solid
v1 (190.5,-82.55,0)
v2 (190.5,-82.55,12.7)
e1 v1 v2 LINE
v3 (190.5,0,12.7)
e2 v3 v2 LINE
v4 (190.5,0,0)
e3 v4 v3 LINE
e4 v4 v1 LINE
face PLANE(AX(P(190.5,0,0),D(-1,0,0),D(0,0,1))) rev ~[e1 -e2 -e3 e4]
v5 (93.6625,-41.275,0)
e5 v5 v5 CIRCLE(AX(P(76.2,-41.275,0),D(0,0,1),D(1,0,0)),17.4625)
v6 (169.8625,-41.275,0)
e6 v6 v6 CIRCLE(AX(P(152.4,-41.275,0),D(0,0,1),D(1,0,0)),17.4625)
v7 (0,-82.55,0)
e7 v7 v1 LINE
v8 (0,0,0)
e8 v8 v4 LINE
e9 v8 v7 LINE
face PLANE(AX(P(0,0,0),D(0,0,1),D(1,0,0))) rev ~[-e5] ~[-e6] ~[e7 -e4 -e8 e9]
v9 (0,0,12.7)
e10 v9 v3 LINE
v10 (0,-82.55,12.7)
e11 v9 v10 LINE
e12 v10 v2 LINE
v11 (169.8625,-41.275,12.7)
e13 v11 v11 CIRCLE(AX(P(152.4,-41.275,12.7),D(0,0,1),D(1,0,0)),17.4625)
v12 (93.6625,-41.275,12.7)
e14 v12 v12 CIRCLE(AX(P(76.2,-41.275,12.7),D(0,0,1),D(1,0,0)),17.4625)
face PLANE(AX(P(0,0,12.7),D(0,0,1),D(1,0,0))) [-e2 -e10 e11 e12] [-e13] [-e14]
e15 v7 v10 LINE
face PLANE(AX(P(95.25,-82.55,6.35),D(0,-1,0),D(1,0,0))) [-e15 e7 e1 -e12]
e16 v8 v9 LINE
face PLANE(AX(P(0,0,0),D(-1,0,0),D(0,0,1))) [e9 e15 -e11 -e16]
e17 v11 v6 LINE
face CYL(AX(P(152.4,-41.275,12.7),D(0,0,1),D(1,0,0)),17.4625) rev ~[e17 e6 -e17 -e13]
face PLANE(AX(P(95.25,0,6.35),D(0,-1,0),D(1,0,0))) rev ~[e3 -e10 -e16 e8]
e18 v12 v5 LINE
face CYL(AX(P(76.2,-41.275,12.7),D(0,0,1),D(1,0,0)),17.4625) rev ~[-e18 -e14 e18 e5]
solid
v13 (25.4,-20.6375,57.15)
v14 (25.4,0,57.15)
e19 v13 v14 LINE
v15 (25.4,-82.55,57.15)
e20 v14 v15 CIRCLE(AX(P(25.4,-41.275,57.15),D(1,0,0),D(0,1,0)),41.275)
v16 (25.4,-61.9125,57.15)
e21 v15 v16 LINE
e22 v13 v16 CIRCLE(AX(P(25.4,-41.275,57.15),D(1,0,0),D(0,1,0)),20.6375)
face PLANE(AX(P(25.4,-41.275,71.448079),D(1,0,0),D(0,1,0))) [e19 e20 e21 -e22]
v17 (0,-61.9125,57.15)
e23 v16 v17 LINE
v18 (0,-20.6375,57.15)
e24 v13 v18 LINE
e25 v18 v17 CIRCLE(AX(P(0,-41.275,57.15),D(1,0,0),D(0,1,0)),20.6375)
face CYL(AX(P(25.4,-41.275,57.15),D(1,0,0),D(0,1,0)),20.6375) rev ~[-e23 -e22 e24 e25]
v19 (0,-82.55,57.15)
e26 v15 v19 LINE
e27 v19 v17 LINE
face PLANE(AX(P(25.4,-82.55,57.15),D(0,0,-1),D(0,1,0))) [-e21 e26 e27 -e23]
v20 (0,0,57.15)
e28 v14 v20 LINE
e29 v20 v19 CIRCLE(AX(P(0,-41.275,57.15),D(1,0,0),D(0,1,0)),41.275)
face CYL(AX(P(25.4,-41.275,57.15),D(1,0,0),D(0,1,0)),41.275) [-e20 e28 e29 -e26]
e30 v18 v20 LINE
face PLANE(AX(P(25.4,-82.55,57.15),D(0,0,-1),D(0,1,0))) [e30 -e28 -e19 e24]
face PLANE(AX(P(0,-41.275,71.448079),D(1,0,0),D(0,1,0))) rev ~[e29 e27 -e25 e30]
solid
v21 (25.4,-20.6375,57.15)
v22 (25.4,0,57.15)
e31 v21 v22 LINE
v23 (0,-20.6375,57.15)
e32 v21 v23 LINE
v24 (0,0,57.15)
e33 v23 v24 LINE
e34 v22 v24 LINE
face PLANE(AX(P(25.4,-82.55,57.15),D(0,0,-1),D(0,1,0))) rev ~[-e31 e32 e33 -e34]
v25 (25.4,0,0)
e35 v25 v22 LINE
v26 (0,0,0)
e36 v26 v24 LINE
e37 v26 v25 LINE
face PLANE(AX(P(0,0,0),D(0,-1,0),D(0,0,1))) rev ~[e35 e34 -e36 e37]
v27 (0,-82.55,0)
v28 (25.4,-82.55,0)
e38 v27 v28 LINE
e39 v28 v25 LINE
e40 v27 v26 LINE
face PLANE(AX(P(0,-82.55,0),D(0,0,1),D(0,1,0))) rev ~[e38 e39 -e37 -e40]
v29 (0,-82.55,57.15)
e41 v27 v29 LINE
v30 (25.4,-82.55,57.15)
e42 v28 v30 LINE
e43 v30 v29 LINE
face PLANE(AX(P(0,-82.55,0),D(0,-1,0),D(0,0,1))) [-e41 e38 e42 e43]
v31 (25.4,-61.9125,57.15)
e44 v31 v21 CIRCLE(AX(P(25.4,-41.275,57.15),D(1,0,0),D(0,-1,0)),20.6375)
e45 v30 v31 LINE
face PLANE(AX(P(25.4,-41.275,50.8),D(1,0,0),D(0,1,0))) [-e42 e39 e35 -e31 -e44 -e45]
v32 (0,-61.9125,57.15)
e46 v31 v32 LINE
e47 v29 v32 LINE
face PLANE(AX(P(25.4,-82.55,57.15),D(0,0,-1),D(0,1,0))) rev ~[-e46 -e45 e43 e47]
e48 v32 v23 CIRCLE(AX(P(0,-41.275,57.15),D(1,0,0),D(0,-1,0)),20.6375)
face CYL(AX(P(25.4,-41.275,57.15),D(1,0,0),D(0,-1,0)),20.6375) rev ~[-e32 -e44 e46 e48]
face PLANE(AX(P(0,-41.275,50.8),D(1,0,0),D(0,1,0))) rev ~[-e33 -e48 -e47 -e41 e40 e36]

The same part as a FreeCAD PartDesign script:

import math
import FreeCAD as App
import Part
import Sketcher
Q = App.Units.Quantity

doc = App.newDocument("Part")
body = doc.addObject("PartDesign::Body", "Body")

# Sketch on XZ plane
sketch1 = body.newObject("Sketcher::SketchObject", "Sketch")
sketch1.AttachmentSupport = (doc.getObject("XZ_Plane"), [""])
sketch1.MapMode = "FlatFace"
sketch1.addGeometry(Part.LineSegment(App.Vector(0, 13, 0), App.Vector(0, 0, 0)), False)
sketch1.addGeometry(Part.LineSegment(App.Vector(0, 0, 0), App.Vector(190, 0, 0)), False)
sketch1.addGeometry(Part.LineSegment(App.Vector(190, 0, 0), App.Vector(190, 13, 0)), False)
sketch1.addGeometry(Part.LineSegment(App.Vector(190, 13, 0), App.Vector(0, 13, 0)), False)
sketch1.addConstraint(Sketcher.Constraint("Coincident", 0, 2, 1, 1))
sketch1.addConstraint(Sketcher.Constraint("Coincident", 1, 2, 2, 1))
sketch1.addConstraint(Sketcher.Constraint("Coincident", 2, 2, 3, 1))
sketch1.addConstraint(Sketcher.Constraint("Coincident", 3, 2, 0, 1))
sketch1.addConstraint(Sketcher.Constraint("Vertical", 0))
sketch1.addConstraint(Sketcher.Constraint("Horizontal", 1))
sketch1.addConstraint(Sketcher.Constraint("Vertical", 2))
sketch1.addConstraint(Sketcher.Constraint("Horizontal", 3))
sketch1.addConstraint(Sketcher.Constraint("Coincident", 0, 2, -1, 1))
sketch1.addConstraint(Sketcher.Constraint("DistanceX", 1, 1, 1, 2, Q("7.5 in")))
sketch1.addConstraint(Sketcher.Constraint("DistanceY", 0, 2, 0, 1, Q("0.5 in")))
pad1 = body.newObject("PartDesign::Pad", "Pad")
pad1.Profile = sketch1
pad1.Length = Q("3.25 in")

# Sketch on XY plane
sketch2 = body.newObject("Sketcher::SketchObject", "Sketch001")
sketch2.AttachmentSupport = (doc.getObject("XY_Plane"), [""])
sketch2.MapMode = "FlatFace"
sketch2.AttachmentOffset = App.Placement(App.Vector(0, 0, 0.5 * 25.4), App.Rotation())
sketch2.addGeometry(Part.Circle(App.Vector(152, -41, 0), App.Vector(0, 0, 1), 17), False)
sketch2.addGeometry(Part.Circle(App.Vector(76, -41, 0), App.Vector(0, 0, 1), 17), False)
sketch2.addConstraint(Sketcher.Constraint("Equal", 0, 1))
sketch2.addConstraint(Sketcher.Constraint("Horizontal", 0, 3, 1, 3))
sketch2.addConstraint(Sketcher.Constraint("Diameter", 0, Q("1.375 in")))
sketch2.addConstraint(Sketcher.Constraint("DistanceX", -1, 1, 0, 3, Q("6 in")))
sketch2.addConstraint(Sketcher.Constraint("DistanceX", -1, 1, 1, 3, Q("3 in")))
sketch2.addConstraint(Sketcher.Constraint("DistanceY", 0, 3, -1, 1, Q("1.625 in")))
pocket1 = body.newObject("PartDesign::Pocket", "Pocket")
pocket1.Profile = sketch2
pocket1.Length = Q("1 in")
body2 = doc.addObject("PartDesign::Body", "Body001")

# Sketch on YZ plane
sketch3 = body2.newObject("Sketcher::SketchObject", "Sketch002")
sketch3.AttachmentSupport = (doc.getObject("YZ_Plane001"), [""])
sketch3.MapMode = "FlatFace"
sketch3.addGeometry(Part.LineSegment(App.Vector(-83, 102, 0), App.Vector(-83, 0, 0)), False)
sketch3.addGeometry(Part.LineSegment(App.Vector(-83, 0, 0), App.Vector(0, 0, 0)), False)
sketch3.addGeometry(Part.LineSegment(App.Vector(0, 0, 0), App.Vector(0, 102, 0)), False)
sketch3.addGeometry(Part.LineSegment(App.Vector(0, 102, 0), App.Vector(-83, 102, 0)), False)
sketch3.addConstraint(Sketcher.Constraint("Coincident", 0, 2, 1, 1))
sketch3.addConstraint(Sketcher.Constraint("Coincident", 1, 2, 2, 1))
sketch3.addConstraint(Sketcher.Constraint("Coincident", 2, 2, 3, 1))
sketch3.addConstraint(Sketcher.Constraint("Coincident", 3, 2, 0, 1))
sketch3.addConstraint(Sketcher.Constraint("Vertical", 0))
sketch3.addConstraint(Sketcher.Constraint("Horizontal", 1))
sketch3.addConstraint(Sketcher.Constraint("Vertical", 2))
sketch3.addConstraint(Sketcher.Constraint("Horizontal", 3))
sketch3.addConstraint(Sketcher.Constraint("Coincident", 1, 2, -1, 1))
sketch3.addConstraint(Sketcher.Constraint("DistanceY", 0, 2, 0, 1, Q("4 in")))
sketch3.addConstraint(Sketcher.Constraint("DistanceX", 1, 1, 1, 2, Q("3.25 in")))
pad2 = body2.newObject("PartDesign::Pad", "Pad001")
pad2.Profile = sketch3
pad2.Length = Q("1 in")

# Sketch on YZ plane
sketch4 = body2.newObject("Sketcher::SketchObject", "Sketch003")
sketch4.AttachmentSupport = (doc.getObject("YZ_Plane001"), [""])
sketch4.MapMode = "FlatFace"
sketch4.AttachmentOffset = App.Placement(App.Vector(0, 0, 1 * 25.4), App.Rotation())
sketch4.addGeometry(Part.LineSegment(App.Vector(-83, 102, 0), App.Vector(-83, 57, 0)), False)
sketch4.addGeometry(Part.LineSegment(App.Vector(-83, 57, 0), App.Vector(0, 57, 0)), False)
sketch4.addGeometry(Part.LineSegment(App.Vector(0, 57, 0), App.Vector(0, 102, 0)), False)
sketch4.addGeometry(Part.LineSegment(App.Vector(0, 102, 0), App.Vector(-83, 102, 0)), False)
sketch4.addConstraint(Sketcher.Constraint("Coincident", 0, 2, 1, 1))
sketch4.addConstraint(Sketcher.Constraint("Coincident", 1, 2, 2, 1))
sketch4.addConstraint(Sketcher.Constraint("Coincident", 2, 2, 3, 1))
sketch4.addConstraint(Sketcher.Constraint("Coincident", 3, 2, 0, 1))
sketch4.addConstraint(Sketcher.Constraint("Vertical", 0))
sketch4.addConstraint(Sketcher.Constraint("Horizontal", 1))
sketch4.addConstraint(Sketcher.Constraint("Vertical", 2))
sketch4.addConstraint(Sketcher.Constraint("Horizontal", 3))
sketch4.addConstraint(Sketcher.Constraint("PointOnObject", 1, 2, -2))
sketch4.addConstraint(Sketcher.Constraint("DistanceY", -1, 1, 2, 2, Q("4 in")))
sketch4.addConstraint(Sketcher.Constraint("DistanceX", 1, 1, 1, 2, Q("3.25 in")))
sketch4.addConstraint(Sketcher.Constraint("DistanceY", 0, 2, 0, 1, Q("1.75 in")))
pocket2 = body2.newObject("PartDesign::Pocket", "Pocket001")
pocket2.Profile = sketch4
pocket2.Length = Q("1 in")

# Sketch on YZ plane
sketch5 = body2.newObject("Sketcher::SketchObject", "Sketch004")
sketch5.AttachmentSupport = (doc.getObject("YZ_Plane001"), [""])
sketch5.MapMode = "FlatFace"
sketch5.AttachmentOffset = App.Placement(App.Vector(0, 0, 1 * 25.4), App.Rotation())
sketch5.addGeometry(Part.ArcOfCircle(Part.Circle(App.Vector(-41, 57, 0), App.Vector(0, 0, 1), 21), math.radians(180), math.radians(360)), False)
sketch5.addGeometry(Part.LineSegment(App.Vector(-21, 57, 0), App.Vector(-62, 57, 0)), False)
sketch5.addConstraint(Sketcher.Constraint("Coincident", 0, 1, 1, 2))
sketch5.addConstraint(Sketcher.Constraint("Coincident", 1, 1, 0, 2))
sketch5.addConstraint(Sketcher.Constraint("Horizontal", 1))
sketch5.addConstraint(Sketcher.Constraint("Radius", 0, Q("0.8125 in")))
sketch5.addConstraint(Sketcher.Constraint("DistanceY", -1, 1, 0, 3, Q("2.25 in")))
sketch5.addConstraint(Sketcher.Constraint("DistanceY", -1, 1, 0, 1, Q("2.25 in")))
sketch5.addConstraint(Sketcher.Constraint("DistanceX", 0, 3, -1, 1, Q("1.625 in")))
pocket3 = body2.newObject("PartDesign::Pocket", "Pocket002")
pocket3.Profile = sketch5
pocket3.Length = Q("1 in")
body3 = doc.addObject("PartDesign::Body", "Body002")

# Sketch on YZ plane
sketch6 = body3.newObject("Sketcher::SketchObject", "Sketch005")
sketch6.AttachmentSupport = (doc.getObject("YZ_Plane002"), [""])
sketch6.MapMode = "FlatFace"
sketch6.AttachmentOffset = App.Placement(App.Vector(0, 0, 1 * 25.4), App.Rotation())
sketch6.addGeometry(Part.LineSegment(App.Vector(-83, 57, 0), App.Vector(0, 57, 0)), False)
sketch6.addGeometry(Part.ArcOfCircle(Part.Circle(App.Vector(-41, 57, 0), App.Vector(0, 0, 1), 41), math.radians(0), math.radians(180)), False)
sketch6.addConstraint(Sketcher.Constraint("Coincident", 0, 1, 1, 2))
sketch6.addConstraint(Sketcher.Constraint("Coincident", 1, 1, 0, 2))
sketch6.addConstraint(Sketcher.Constraint("Horizontal", 0))
sketch6.addConstraint(Sketcher.Constraint("PointOnObject", 1, 1, -2))
sketch6.addConstraint(Sketcher.Constraint("Horizontal", 1, 3, 0, 1))
sketch6.addConstraint(Sketcher.Constraint("Radius", 1, Q("1.625 in")))
sketch6.addConstraint(Sketcher.Constraint("DistanceY", -1, 1, 1, 3, Q("2.25 in")))
pad3 = body3.newObject("PartDesign::Pad", "Pad002")
pad3.Profile = sketch6
pad3.Length = Q("1 in")
pad3.Reversed = True

# Sketch on YZ plane
sketch7 = body3.newObject("Sketcher::SketchObject", "Sketch006")
sketch7.AttachmentSupport = (doc.getObject("YZ_Plane002"), [""])
sketch7.MapMode = "FlatFace"
sketch7.AttachmentOffset = App.Placement(App.Vector(0, 0, 1 * 25.4), App.Rotation())
sketch7.addGeometry(Part.LineSegment(App.Vector(-62, 57, 0), App.Vector(-21, 57, 0)), False)
sketch7.addGeometry(Part.ArcOfCircle(Part.Circle(App.Vector(-41, 57, 0), App.Vector(0, 0, 1), 21), math.radians(0), math.radians(180)), False)
sketch7.addConstraint(Sketcher.Constraint("Coincident", 0, 1, 1, 2))
sketch7.addConstraint(Sketcher.Constraint("Coincident", 1, 1, 0, 2))
sketch7.addConstraint(Sketcher.Constraint("Horizontal", 0))
sketch7.addConstraint(Sketcher.Constraint("Horizontal", 1, 3, 0, 1))
sketch7.addConstraint(Sketcher.Constraint("Radius", 1, Q("0.8125 in")))
sketch7.addConstraint(Sketcher.Constraint("DistanceY", -1, 1, 1, 3, Q("2.25 in")))
sketch7.addConstraint(Sketcher.Constraint("DistanceX", 1, 3, -1, 1, Q("1.625 in")))
pocket4 = body3.newObject("PartDesign::Pocket", "Pocket003")
pocket4.Profile = sketch7
pocket4.Length = Q("1 in")

doc.recompute()
